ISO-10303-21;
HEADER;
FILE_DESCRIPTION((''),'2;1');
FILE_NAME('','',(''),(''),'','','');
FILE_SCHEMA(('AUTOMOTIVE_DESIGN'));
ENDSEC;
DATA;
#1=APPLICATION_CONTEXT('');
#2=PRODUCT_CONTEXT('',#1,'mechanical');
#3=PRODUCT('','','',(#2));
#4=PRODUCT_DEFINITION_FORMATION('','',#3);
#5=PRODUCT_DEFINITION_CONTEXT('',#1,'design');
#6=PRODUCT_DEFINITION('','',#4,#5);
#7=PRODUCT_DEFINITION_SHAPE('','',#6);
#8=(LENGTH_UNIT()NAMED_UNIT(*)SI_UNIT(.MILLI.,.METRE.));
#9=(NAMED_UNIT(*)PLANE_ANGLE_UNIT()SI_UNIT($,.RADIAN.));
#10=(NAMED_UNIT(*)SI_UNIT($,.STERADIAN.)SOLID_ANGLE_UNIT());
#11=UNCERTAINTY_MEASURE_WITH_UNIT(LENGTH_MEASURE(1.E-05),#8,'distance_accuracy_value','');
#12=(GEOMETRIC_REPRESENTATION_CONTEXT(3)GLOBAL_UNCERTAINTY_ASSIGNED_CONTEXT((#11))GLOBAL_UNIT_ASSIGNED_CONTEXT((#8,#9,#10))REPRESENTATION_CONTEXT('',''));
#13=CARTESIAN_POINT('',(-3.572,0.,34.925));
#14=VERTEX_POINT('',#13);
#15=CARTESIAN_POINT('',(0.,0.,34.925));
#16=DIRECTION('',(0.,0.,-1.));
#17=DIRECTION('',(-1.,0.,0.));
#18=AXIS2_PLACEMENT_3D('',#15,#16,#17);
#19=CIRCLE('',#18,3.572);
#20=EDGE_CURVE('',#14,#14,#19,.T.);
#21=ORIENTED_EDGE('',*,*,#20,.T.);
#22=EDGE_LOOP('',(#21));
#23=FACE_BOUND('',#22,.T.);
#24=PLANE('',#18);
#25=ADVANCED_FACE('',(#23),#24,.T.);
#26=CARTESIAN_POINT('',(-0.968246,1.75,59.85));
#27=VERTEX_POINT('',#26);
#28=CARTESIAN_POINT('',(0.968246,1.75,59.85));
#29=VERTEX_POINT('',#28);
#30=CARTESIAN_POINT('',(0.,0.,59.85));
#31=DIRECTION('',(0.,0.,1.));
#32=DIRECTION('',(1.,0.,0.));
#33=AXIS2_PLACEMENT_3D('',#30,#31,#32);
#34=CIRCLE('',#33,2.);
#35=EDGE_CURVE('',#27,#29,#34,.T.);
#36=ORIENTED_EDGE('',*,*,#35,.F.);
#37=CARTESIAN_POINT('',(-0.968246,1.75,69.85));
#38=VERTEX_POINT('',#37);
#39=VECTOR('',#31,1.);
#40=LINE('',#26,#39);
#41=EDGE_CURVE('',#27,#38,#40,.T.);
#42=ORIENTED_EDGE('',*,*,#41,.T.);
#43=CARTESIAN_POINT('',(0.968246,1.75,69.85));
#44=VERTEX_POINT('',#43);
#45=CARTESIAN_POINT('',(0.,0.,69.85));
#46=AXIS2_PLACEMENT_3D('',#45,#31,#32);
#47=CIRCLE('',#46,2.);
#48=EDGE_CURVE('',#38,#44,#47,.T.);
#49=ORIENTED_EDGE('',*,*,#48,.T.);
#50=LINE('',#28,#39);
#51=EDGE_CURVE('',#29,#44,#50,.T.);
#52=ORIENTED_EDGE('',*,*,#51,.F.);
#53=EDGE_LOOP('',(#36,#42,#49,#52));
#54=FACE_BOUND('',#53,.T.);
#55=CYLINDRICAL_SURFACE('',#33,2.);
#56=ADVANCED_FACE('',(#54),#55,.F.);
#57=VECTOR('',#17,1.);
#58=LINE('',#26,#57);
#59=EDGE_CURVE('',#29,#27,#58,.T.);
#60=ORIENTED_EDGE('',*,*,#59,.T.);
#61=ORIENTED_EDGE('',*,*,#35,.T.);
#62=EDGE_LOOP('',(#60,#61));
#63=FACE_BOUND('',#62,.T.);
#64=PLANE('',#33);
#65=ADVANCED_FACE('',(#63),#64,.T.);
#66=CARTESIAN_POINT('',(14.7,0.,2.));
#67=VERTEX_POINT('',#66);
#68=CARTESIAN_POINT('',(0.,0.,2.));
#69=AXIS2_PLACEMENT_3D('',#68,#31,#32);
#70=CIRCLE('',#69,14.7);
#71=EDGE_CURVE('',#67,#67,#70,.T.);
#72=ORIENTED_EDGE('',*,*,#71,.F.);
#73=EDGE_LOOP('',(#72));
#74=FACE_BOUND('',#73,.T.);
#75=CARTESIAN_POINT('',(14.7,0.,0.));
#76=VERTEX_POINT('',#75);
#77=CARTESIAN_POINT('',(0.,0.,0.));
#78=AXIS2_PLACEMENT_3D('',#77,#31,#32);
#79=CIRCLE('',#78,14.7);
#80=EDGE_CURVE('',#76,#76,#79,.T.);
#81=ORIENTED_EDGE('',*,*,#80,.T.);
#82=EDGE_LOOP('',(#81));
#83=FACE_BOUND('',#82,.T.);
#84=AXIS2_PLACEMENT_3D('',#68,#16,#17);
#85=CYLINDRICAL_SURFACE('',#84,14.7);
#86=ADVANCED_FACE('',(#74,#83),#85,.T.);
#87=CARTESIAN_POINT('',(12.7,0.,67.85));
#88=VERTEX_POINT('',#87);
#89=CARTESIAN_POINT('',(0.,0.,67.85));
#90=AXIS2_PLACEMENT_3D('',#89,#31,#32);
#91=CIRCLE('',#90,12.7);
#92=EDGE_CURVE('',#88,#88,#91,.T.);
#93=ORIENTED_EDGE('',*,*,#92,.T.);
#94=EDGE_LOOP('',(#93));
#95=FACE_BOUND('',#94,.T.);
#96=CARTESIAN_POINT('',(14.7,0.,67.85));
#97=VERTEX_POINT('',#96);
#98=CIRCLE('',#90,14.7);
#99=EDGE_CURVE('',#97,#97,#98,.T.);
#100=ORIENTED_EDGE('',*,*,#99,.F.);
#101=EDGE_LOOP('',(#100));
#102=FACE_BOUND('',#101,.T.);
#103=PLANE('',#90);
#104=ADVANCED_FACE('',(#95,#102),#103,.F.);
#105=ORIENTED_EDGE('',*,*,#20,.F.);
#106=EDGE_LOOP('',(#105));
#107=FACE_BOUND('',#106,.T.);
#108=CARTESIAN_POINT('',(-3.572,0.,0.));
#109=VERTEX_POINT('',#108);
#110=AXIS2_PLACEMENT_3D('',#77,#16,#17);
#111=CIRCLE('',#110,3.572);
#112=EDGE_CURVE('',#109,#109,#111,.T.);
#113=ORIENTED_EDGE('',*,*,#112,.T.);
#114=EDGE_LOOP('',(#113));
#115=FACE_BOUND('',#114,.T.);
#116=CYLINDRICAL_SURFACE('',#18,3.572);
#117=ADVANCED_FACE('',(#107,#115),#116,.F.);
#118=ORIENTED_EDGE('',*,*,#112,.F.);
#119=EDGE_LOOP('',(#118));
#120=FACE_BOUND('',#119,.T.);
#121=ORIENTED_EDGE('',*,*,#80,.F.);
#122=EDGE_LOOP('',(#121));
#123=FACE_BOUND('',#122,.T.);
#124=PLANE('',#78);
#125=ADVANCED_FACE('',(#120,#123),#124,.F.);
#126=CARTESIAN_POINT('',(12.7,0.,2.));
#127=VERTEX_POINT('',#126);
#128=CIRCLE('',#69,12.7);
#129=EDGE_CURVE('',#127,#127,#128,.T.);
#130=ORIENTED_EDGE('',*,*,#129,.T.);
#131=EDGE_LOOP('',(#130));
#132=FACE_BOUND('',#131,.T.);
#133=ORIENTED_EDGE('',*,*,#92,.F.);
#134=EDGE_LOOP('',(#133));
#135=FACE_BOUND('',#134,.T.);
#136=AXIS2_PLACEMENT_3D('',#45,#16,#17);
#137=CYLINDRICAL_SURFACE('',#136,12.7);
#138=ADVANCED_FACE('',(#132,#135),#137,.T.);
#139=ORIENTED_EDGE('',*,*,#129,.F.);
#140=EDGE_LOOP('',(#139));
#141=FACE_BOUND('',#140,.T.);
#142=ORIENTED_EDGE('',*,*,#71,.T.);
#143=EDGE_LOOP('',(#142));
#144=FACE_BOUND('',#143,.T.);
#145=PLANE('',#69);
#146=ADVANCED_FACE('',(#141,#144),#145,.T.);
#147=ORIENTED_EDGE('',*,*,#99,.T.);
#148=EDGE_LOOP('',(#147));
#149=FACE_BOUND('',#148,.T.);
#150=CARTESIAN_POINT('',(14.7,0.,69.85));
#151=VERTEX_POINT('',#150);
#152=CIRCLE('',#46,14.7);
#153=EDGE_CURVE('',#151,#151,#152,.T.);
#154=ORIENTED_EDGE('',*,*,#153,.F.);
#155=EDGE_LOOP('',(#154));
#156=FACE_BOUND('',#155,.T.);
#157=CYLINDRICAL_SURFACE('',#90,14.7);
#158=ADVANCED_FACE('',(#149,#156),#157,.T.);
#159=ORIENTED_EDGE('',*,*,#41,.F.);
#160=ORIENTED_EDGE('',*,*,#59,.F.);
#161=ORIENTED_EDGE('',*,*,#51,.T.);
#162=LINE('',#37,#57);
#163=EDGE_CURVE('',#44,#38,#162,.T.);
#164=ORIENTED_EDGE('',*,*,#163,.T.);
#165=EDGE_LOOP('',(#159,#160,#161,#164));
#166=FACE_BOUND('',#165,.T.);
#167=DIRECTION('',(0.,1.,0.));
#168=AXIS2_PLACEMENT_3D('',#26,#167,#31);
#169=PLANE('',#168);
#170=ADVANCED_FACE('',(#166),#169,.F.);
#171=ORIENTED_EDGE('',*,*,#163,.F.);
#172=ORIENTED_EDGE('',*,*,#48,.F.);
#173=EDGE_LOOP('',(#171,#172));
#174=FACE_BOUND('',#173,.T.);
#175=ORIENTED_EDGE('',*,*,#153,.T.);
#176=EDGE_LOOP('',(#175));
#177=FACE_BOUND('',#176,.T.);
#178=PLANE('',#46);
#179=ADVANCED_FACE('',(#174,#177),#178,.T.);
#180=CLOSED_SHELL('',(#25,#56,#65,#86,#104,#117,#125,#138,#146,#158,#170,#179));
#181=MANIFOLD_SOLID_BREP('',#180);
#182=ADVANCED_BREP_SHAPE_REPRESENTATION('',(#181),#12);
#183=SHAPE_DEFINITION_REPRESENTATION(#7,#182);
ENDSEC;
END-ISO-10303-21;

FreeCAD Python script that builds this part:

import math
import FreeCAD as App
import Part
import Sketcher
from FreeCAD import Vector

doc = App.newDocument("Part")
body = doc.addObject("PartDesign::Body", "Body")

# Sketch on XY plane
sketch1 = body.newObject("Sketcher::SketchObject", "Sketch")
sketch1.AttachmentSupport = (doc.getObject("XY_Plane"), [""])
sketch1.MapMode = "FlatFace"
sketch1.addGeometry(Part.Circle(Vector(0, 0, 0), Vector(0, 0, 1), 13), False)
sketch1.addConstraint(Sketcher.Constraint("Coincident", 0, 3, -1, 1))
sketch1.addConstraint(Sketcher.Constraint("Diameter", 0, 25.4))
pad1 = body.newObject("PartDesign::Pad", "Pad")
pad1.Profile = sketch1
pad1.Length = 69.85

# Sketch on XY plane
sketch2 = body.newObject("Sketcher::SketchObject", "Sketch001")
sketch2.AttachmentSupport = (doc.getObject("XY_Plane"), [""])
sketch2.MapMode = "FlatFace"
sketch2.AttachmentOffset = App.Placement(Vector(0, 0, 69.85), App.Rotation())
sketch2.addGeometry(Part.LineSegment(Vector(1, 1.8, 0), Vector(-1, 1.8, 0)), False)
sketch2.addGeometry(Part.ArcOfCircle(Part.Circle(Vector(0, 0, 0), Vector(0, 0, 1), 2), math.radians(119), math.radians(421)), False)
sketch2.addConstraint(Sketcher.Constraint("Coincident", 0, 1, 1, 2))
sketch2.addConstraint(Sketcher.Constraint("Coincident", 1, 1, 0, 2))
sketch2.addConstraint(Sketcher.Constraint("Horizontal", 0))
sketch2.addConstraint(Sketcher.Constraint("Coincident", 1, 3, -1, 1))
sketch2.addConstraint(Sketcher.Constraint("Radius", 1, 2.0))
sketch2.addConstraint(Sketcher.Constraint("DistanceY", -1, 1, 0, 1, 1.75))
pocket1 = body.newObject("PartDesign::Pocket", "Pocket")
pocket1.Profile = sketch2
pocket1.Length = 10

# Sketch on XY plane
sketch3 = body.newObject("Sketcher::SketchObject", "Sketch002")
sketch3.AttachmentSupport = (doc.getObject("XY_Plane"), [""])
sketch3.MapMode = "FlatFace"
sketch3.addGeometry(Part.Circle(Vector(0, 0, 0), Vector(0, 0, 1), 3.6), False)
sketch3.addConstraint(Sketcher.Constraint("Coincident", 0, 3, -1, 1))
sketch3.addConstraint(Sketcher.Constraint("Diameter", 0, 7.144))
pocket2 = body.newObject("PartDesign::Pocket", "Pocket001")
pocket2.Profile = sketch3
pocket2.Length = 34.925
pocket2.Reversed = True

# Sketch on XY plane
sketch4 = body.newObject("Sketcher::SketchObject", "Sketch003")
sketch4.AttachmentSupport = (doc.getObject("XY_Plane"), [""])
sketch4.MapMode = "FlatFace"
sketch4.addGeometry(Part.Circle(Vector(0, 0, 0), Vector(0, 0, 1), 14.7), False)
sketch4.addGeometry(Part.Circle(Vector(0, 0, 0), Vector(0, 0, 1), 3.6), False)
sketch4.addConstraint(Sketcher.Constraint("Coincident", 0, 3, -1, 1))
sketch4.addConstraint(Sketcher.Constraint("Coincident", 1, 3, -1, 1))
sketch4.addConstraint(Sketcher.Constraint("Diameter", 0, 29.4))
sketch4.addConstraint(Sketcher.Constraint("Diameter", 1, 7.144))
pad2 = body.newObject("PartDesign::Pad", "Pad001")
pad2.Profile = sketch4
pad2.Length = 2

# Sketch on XY plane
sketch5 = body.newObject("Sketcher::SketchObject", "Sketch004")
sketch5.AttachmentSupport = (doc.getObject("XY_Plane"), [""])
sketch5.MapMode = "FlatFace"
sketch5.AttachmentOffset = App.Placement(Vector(0, 0, 69.85), App.Rotation())
sketch5.addGeometry(Part.Circle(Vector(0, 0, 0), Vector(0, 0, 1), 14.7), False)
sketch5.addGeometry(Part.ArcOfCircle(Part.Circle(Vector(0, 0, 0), Vector(0, 0, 1), 2), math.radians(119), math.radians(421)), False)
sketch5.addGeometry(Part.LineSegment(Vector(-1, 1.8, 0), Vector(1, 1.8, 0)), False)
sketch5.addConstraint(Sketcher.Constraint("Coincident", 1, 1, 2, 1))
sketch5.addConstraint(Sketcher.Constraint("Coincident", 2, 2, 1, 2))
sketch5.addConstraint(Sketcher.Constraint("Horizontal", 2))
sketch5.addConstraint(Sketcher.Constraint("Coincident", 0, 3, -1, 1))
sketch5.addConstraint(Sketcher.Constraint("Coincident", 1, 3, -1, 1))
sketch5.addConstraint(Sketcher.Constraint("Radius", 1, 2.0))
sketch5.addConstraint(Sketcher.Constraint("Diameter", 0, 29.4))
sketch5.addConstraint(Sketcher.Constraint("DistanceY", -1, 1, 1, 1, 1.75))
pad3 = body.newObject("PartDesign::Pad", "Pad002")
pad3.Profile = sketch5
pad3.Length = 2
pad3.Reversed = True

doc.recompute()
